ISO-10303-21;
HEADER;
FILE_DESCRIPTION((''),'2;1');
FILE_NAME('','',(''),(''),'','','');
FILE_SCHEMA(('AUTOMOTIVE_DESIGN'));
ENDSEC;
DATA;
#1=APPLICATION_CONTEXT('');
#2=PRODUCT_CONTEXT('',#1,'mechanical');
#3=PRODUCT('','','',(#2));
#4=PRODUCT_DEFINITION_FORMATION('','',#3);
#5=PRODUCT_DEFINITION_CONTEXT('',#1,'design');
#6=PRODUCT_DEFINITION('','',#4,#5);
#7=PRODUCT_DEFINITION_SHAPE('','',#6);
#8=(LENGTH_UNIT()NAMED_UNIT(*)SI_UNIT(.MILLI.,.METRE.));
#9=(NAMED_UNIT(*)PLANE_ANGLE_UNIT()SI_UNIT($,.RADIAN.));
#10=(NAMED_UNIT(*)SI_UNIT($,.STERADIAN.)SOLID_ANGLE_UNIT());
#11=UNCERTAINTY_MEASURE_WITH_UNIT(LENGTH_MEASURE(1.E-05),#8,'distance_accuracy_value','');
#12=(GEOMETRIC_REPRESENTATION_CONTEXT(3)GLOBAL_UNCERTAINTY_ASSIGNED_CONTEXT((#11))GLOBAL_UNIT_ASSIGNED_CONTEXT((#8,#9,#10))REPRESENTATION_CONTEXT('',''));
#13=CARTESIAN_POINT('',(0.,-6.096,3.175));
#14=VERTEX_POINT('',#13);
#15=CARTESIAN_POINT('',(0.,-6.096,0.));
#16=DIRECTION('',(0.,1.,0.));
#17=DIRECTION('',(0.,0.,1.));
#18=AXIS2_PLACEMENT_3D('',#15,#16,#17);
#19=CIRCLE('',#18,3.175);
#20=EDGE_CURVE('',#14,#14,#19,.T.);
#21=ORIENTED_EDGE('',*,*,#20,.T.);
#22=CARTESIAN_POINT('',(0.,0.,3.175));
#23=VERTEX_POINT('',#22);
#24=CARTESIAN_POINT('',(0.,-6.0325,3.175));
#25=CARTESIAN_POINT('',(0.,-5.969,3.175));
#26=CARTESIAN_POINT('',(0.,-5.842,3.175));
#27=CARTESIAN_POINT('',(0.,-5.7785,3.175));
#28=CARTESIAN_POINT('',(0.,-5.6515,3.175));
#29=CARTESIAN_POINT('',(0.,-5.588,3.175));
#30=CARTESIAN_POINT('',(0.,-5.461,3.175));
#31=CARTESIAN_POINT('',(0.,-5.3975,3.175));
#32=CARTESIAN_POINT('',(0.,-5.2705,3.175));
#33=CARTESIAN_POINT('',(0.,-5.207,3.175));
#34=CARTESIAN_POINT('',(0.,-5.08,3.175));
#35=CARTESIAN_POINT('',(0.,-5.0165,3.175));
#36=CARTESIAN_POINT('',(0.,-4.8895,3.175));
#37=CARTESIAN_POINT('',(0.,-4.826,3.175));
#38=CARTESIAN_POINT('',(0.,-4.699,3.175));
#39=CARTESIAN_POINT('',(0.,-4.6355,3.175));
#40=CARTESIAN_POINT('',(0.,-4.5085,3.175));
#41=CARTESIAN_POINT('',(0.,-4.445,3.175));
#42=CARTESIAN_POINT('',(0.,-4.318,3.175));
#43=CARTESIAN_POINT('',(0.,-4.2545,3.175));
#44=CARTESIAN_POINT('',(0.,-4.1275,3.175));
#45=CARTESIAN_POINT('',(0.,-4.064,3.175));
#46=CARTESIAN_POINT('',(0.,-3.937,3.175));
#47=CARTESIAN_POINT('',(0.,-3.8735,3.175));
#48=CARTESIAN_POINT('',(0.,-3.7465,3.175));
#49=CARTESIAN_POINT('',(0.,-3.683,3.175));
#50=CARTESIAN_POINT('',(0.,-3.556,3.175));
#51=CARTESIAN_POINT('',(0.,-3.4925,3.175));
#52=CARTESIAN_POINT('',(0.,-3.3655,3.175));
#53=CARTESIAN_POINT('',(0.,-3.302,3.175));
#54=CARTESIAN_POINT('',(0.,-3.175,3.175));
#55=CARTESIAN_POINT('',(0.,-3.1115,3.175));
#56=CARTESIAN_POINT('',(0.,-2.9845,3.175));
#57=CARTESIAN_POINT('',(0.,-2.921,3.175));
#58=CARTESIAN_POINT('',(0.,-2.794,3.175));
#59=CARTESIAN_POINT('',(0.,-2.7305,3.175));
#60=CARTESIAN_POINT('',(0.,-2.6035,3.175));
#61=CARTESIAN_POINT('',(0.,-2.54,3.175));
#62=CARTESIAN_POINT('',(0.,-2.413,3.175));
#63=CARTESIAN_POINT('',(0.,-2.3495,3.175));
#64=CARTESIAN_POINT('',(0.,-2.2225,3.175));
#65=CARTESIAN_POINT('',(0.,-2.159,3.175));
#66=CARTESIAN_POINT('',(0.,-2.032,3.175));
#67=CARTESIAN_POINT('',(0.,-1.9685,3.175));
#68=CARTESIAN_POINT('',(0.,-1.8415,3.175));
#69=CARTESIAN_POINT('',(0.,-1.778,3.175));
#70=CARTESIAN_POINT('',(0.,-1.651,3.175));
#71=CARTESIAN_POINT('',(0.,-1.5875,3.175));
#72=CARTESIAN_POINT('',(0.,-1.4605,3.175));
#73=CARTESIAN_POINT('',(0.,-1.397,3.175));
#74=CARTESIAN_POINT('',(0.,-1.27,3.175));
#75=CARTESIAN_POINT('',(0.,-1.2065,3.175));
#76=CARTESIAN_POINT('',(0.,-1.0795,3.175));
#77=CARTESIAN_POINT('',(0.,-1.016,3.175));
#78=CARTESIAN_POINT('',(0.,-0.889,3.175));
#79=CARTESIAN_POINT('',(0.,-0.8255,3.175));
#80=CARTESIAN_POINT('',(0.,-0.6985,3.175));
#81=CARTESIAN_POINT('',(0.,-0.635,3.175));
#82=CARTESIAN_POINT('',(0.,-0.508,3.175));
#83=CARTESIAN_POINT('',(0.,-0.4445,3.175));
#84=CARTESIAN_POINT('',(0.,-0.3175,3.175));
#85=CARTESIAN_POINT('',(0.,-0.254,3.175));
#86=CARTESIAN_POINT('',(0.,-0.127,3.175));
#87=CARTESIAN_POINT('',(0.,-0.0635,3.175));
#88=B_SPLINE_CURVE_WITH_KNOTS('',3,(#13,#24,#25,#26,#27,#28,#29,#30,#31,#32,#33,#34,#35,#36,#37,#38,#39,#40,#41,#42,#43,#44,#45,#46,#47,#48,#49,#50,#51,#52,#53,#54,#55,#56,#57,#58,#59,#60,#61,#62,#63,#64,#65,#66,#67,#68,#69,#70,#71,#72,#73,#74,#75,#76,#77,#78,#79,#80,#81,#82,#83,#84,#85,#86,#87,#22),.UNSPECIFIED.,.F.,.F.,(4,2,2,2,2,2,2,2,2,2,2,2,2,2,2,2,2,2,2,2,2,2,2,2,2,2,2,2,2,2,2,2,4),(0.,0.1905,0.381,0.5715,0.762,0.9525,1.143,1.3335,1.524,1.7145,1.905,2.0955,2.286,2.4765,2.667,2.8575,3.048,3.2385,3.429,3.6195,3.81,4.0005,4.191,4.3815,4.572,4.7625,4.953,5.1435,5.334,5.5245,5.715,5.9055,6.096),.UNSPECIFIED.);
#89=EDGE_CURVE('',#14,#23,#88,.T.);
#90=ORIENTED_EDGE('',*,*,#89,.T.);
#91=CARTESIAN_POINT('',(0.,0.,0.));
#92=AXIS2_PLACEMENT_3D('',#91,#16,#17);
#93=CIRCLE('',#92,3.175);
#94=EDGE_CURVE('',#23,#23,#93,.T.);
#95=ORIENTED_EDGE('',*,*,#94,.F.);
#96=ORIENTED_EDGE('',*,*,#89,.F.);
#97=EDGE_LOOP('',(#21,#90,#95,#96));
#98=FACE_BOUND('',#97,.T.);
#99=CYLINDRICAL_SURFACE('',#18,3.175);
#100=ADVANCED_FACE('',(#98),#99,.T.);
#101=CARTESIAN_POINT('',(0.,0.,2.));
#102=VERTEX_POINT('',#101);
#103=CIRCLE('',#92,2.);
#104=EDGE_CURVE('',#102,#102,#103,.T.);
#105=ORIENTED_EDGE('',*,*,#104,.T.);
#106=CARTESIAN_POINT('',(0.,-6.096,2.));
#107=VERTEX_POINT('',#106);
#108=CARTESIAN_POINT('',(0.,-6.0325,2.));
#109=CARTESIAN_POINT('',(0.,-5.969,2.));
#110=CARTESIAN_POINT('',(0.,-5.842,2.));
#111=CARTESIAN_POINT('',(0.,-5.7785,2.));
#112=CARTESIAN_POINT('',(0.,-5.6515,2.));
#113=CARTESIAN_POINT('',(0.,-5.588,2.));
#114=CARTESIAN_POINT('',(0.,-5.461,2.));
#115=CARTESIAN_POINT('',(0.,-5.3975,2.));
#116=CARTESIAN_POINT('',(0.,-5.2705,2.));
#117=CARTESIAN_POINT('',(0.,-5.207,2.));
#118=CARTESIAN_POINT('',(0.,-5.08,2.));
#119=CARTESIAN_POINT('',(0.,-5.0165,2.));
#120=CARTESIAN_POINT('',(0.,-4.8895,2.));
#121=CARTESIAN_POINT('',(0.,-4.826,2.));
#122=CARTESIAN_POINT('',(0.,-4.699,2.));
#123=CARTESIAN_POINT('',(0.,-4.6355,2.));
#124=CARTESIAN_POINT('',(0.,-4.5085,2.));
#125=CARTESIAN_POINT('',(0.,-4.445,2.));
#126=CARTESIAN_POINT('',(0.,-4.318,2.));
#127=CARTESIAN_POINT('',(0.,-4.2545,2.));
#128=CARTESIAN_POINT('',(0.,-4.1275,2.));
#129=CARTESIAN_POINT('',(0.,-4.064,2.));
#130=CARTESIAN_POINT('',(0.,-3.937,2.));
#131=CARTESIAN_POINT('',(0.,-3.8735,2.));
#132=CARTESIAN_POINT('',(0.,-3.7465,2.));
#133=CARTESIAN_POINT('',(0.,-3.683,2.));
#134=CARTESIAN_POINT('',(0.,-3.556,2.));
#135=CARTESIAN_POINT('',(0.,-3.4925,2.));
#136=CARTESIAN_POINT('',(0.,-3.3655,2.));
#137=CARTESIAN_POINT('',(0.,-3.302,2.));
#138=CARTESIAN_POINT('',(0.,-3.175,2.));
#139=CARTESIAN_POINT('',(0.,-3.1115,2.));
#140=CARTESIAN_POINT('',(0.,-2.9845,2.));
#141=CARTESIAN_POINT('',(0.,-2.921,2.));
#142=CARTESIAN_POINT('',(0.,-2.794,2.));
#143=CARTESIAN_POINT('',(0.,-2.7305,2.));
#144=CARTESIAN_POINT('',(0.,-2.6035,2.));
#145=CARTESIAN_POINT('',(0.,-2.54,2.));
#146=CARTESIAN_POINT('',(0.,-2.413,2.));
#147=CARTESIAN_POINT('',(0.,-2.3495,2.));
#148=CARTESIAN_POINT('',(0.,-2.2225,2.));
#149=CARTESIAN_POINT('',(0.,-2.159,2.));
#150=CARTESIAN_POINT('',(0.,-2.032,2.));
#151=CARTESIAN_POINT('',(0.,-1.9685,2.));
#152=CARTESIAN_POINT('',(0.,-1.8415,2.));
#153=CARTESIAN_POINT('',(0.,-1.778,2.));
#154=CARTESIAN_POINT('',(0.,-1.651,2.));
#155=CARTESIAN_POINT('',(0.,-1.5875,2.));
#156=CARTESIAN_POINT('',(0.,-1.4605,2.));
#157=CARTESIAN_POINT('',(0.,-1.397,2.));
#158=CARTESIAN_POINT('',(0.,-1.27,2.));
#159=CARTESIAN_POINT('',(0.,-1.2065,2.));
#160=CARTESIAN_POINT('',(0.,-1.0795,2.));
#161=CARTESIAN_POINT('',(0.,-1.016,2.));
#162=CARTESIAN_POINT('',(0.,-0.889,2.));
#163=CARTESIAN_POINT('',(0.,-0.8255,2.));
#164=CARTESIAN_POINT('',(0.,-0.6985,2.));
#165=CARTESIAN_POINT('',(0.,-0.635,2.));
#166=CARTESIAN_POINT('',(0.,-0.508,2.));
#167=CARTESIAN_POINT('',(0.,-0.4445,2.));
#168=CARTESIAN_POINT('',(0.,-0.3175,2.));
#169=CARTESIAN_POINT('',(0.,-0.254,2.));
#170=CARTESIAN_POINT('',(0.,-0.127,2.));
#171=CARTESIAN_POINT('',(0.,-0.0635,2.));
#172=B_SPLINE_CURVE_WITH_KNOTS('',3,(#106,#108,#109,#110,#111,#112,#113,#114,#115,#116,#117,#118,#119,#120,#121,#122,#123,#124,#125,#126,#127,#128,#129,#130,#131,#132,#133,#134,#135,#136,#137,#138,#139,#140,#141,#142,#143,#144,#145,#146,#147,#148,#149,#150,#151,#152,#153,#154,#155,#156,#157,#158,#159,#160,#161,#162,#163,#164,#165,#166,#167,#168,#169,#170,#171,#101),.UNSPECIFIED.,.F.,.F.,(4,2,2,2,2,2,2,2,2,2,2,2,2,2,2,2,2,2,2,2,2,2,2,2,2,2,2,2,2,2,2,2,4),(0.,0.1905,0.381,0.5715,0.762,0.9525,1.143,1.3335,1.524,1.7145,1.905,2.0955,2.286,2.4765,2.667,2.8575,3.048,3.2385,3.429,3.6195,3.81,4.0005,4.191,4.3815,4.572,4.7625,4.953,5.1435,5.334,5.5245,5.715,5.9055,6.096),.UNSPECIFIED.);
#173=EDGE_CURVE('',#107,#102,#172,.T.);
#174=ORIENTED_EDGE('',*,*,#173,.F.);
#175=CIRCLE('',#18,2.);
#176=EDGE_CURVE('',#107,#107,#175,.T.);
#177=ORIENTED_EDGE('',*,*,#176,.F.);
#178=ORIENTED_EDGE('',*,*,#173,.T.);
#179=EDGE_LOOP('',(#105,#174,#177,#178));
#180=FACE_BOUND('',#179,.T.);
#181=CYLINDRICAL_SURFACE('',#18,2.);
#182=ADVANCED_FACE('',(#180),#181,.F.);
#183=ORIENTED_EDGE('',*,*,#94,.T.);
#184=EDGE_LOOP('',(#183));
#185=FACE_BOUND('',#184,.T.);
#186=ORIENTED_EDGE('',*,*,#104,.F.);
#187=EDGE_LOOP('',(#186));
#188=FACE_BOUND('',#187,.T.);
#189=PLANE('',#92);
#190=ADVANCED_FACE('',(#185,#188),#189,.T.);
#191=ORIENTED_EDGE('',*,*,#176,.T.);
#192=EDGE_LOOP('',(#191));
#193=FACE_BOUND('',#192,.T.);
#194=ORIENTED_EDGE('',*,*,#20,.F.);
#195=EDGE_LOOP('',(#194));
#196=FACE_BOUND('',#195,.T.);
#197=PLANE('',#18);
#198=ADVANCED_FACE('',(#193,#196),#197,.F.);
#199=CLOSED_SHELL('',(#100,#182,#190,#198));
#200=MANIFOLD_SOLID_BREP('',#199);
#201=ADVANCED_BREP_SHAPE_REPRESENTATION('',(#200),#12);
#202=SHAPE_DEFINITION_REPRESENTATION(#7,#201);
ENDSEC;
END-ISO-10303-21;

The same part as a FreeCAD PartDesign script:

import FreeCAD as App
import Part
import Sketcher

V = App.Vector
Q = App.Units.Quantity

doc = App.newDocument("Part")
body = doc.addObject("PartDesign::Body", "Body")

# Sketch on XZ plane
sketch1 = body.newObject("Sketcher::SketchObject", "Sketch")
sketch1.AttachmentSupport = (doc.getObject("XZ_Plane"), [""])
sketch1.MapMode = "FlatFace"
sketch1.addGeometry([
    Part.Circle(V(0, 0, 0), V(0, 0, 1), 3.2),
    Part.Circle(V(0, 0, 0), V(0, 0, 1), 2),
], False)
sketch1.addConstraint([
    Sketcher.Constraint("Coincident", 0, 3, -1, 1),
    Sketcher.Constraint("Coincident", 1, 3, -1, 1),
    Sketcher.Constraint("Diameter", 0, Q("0.25 in")),
    Sketcher.Constraint("Diameter", 1, Q("4 mm")),
])
pad1 = body.newObject("PartDesign::Pad", "Pad")
pad1.Profile = sketch1
pad1.Length = Q("0.24 in")

doc.recompute()
